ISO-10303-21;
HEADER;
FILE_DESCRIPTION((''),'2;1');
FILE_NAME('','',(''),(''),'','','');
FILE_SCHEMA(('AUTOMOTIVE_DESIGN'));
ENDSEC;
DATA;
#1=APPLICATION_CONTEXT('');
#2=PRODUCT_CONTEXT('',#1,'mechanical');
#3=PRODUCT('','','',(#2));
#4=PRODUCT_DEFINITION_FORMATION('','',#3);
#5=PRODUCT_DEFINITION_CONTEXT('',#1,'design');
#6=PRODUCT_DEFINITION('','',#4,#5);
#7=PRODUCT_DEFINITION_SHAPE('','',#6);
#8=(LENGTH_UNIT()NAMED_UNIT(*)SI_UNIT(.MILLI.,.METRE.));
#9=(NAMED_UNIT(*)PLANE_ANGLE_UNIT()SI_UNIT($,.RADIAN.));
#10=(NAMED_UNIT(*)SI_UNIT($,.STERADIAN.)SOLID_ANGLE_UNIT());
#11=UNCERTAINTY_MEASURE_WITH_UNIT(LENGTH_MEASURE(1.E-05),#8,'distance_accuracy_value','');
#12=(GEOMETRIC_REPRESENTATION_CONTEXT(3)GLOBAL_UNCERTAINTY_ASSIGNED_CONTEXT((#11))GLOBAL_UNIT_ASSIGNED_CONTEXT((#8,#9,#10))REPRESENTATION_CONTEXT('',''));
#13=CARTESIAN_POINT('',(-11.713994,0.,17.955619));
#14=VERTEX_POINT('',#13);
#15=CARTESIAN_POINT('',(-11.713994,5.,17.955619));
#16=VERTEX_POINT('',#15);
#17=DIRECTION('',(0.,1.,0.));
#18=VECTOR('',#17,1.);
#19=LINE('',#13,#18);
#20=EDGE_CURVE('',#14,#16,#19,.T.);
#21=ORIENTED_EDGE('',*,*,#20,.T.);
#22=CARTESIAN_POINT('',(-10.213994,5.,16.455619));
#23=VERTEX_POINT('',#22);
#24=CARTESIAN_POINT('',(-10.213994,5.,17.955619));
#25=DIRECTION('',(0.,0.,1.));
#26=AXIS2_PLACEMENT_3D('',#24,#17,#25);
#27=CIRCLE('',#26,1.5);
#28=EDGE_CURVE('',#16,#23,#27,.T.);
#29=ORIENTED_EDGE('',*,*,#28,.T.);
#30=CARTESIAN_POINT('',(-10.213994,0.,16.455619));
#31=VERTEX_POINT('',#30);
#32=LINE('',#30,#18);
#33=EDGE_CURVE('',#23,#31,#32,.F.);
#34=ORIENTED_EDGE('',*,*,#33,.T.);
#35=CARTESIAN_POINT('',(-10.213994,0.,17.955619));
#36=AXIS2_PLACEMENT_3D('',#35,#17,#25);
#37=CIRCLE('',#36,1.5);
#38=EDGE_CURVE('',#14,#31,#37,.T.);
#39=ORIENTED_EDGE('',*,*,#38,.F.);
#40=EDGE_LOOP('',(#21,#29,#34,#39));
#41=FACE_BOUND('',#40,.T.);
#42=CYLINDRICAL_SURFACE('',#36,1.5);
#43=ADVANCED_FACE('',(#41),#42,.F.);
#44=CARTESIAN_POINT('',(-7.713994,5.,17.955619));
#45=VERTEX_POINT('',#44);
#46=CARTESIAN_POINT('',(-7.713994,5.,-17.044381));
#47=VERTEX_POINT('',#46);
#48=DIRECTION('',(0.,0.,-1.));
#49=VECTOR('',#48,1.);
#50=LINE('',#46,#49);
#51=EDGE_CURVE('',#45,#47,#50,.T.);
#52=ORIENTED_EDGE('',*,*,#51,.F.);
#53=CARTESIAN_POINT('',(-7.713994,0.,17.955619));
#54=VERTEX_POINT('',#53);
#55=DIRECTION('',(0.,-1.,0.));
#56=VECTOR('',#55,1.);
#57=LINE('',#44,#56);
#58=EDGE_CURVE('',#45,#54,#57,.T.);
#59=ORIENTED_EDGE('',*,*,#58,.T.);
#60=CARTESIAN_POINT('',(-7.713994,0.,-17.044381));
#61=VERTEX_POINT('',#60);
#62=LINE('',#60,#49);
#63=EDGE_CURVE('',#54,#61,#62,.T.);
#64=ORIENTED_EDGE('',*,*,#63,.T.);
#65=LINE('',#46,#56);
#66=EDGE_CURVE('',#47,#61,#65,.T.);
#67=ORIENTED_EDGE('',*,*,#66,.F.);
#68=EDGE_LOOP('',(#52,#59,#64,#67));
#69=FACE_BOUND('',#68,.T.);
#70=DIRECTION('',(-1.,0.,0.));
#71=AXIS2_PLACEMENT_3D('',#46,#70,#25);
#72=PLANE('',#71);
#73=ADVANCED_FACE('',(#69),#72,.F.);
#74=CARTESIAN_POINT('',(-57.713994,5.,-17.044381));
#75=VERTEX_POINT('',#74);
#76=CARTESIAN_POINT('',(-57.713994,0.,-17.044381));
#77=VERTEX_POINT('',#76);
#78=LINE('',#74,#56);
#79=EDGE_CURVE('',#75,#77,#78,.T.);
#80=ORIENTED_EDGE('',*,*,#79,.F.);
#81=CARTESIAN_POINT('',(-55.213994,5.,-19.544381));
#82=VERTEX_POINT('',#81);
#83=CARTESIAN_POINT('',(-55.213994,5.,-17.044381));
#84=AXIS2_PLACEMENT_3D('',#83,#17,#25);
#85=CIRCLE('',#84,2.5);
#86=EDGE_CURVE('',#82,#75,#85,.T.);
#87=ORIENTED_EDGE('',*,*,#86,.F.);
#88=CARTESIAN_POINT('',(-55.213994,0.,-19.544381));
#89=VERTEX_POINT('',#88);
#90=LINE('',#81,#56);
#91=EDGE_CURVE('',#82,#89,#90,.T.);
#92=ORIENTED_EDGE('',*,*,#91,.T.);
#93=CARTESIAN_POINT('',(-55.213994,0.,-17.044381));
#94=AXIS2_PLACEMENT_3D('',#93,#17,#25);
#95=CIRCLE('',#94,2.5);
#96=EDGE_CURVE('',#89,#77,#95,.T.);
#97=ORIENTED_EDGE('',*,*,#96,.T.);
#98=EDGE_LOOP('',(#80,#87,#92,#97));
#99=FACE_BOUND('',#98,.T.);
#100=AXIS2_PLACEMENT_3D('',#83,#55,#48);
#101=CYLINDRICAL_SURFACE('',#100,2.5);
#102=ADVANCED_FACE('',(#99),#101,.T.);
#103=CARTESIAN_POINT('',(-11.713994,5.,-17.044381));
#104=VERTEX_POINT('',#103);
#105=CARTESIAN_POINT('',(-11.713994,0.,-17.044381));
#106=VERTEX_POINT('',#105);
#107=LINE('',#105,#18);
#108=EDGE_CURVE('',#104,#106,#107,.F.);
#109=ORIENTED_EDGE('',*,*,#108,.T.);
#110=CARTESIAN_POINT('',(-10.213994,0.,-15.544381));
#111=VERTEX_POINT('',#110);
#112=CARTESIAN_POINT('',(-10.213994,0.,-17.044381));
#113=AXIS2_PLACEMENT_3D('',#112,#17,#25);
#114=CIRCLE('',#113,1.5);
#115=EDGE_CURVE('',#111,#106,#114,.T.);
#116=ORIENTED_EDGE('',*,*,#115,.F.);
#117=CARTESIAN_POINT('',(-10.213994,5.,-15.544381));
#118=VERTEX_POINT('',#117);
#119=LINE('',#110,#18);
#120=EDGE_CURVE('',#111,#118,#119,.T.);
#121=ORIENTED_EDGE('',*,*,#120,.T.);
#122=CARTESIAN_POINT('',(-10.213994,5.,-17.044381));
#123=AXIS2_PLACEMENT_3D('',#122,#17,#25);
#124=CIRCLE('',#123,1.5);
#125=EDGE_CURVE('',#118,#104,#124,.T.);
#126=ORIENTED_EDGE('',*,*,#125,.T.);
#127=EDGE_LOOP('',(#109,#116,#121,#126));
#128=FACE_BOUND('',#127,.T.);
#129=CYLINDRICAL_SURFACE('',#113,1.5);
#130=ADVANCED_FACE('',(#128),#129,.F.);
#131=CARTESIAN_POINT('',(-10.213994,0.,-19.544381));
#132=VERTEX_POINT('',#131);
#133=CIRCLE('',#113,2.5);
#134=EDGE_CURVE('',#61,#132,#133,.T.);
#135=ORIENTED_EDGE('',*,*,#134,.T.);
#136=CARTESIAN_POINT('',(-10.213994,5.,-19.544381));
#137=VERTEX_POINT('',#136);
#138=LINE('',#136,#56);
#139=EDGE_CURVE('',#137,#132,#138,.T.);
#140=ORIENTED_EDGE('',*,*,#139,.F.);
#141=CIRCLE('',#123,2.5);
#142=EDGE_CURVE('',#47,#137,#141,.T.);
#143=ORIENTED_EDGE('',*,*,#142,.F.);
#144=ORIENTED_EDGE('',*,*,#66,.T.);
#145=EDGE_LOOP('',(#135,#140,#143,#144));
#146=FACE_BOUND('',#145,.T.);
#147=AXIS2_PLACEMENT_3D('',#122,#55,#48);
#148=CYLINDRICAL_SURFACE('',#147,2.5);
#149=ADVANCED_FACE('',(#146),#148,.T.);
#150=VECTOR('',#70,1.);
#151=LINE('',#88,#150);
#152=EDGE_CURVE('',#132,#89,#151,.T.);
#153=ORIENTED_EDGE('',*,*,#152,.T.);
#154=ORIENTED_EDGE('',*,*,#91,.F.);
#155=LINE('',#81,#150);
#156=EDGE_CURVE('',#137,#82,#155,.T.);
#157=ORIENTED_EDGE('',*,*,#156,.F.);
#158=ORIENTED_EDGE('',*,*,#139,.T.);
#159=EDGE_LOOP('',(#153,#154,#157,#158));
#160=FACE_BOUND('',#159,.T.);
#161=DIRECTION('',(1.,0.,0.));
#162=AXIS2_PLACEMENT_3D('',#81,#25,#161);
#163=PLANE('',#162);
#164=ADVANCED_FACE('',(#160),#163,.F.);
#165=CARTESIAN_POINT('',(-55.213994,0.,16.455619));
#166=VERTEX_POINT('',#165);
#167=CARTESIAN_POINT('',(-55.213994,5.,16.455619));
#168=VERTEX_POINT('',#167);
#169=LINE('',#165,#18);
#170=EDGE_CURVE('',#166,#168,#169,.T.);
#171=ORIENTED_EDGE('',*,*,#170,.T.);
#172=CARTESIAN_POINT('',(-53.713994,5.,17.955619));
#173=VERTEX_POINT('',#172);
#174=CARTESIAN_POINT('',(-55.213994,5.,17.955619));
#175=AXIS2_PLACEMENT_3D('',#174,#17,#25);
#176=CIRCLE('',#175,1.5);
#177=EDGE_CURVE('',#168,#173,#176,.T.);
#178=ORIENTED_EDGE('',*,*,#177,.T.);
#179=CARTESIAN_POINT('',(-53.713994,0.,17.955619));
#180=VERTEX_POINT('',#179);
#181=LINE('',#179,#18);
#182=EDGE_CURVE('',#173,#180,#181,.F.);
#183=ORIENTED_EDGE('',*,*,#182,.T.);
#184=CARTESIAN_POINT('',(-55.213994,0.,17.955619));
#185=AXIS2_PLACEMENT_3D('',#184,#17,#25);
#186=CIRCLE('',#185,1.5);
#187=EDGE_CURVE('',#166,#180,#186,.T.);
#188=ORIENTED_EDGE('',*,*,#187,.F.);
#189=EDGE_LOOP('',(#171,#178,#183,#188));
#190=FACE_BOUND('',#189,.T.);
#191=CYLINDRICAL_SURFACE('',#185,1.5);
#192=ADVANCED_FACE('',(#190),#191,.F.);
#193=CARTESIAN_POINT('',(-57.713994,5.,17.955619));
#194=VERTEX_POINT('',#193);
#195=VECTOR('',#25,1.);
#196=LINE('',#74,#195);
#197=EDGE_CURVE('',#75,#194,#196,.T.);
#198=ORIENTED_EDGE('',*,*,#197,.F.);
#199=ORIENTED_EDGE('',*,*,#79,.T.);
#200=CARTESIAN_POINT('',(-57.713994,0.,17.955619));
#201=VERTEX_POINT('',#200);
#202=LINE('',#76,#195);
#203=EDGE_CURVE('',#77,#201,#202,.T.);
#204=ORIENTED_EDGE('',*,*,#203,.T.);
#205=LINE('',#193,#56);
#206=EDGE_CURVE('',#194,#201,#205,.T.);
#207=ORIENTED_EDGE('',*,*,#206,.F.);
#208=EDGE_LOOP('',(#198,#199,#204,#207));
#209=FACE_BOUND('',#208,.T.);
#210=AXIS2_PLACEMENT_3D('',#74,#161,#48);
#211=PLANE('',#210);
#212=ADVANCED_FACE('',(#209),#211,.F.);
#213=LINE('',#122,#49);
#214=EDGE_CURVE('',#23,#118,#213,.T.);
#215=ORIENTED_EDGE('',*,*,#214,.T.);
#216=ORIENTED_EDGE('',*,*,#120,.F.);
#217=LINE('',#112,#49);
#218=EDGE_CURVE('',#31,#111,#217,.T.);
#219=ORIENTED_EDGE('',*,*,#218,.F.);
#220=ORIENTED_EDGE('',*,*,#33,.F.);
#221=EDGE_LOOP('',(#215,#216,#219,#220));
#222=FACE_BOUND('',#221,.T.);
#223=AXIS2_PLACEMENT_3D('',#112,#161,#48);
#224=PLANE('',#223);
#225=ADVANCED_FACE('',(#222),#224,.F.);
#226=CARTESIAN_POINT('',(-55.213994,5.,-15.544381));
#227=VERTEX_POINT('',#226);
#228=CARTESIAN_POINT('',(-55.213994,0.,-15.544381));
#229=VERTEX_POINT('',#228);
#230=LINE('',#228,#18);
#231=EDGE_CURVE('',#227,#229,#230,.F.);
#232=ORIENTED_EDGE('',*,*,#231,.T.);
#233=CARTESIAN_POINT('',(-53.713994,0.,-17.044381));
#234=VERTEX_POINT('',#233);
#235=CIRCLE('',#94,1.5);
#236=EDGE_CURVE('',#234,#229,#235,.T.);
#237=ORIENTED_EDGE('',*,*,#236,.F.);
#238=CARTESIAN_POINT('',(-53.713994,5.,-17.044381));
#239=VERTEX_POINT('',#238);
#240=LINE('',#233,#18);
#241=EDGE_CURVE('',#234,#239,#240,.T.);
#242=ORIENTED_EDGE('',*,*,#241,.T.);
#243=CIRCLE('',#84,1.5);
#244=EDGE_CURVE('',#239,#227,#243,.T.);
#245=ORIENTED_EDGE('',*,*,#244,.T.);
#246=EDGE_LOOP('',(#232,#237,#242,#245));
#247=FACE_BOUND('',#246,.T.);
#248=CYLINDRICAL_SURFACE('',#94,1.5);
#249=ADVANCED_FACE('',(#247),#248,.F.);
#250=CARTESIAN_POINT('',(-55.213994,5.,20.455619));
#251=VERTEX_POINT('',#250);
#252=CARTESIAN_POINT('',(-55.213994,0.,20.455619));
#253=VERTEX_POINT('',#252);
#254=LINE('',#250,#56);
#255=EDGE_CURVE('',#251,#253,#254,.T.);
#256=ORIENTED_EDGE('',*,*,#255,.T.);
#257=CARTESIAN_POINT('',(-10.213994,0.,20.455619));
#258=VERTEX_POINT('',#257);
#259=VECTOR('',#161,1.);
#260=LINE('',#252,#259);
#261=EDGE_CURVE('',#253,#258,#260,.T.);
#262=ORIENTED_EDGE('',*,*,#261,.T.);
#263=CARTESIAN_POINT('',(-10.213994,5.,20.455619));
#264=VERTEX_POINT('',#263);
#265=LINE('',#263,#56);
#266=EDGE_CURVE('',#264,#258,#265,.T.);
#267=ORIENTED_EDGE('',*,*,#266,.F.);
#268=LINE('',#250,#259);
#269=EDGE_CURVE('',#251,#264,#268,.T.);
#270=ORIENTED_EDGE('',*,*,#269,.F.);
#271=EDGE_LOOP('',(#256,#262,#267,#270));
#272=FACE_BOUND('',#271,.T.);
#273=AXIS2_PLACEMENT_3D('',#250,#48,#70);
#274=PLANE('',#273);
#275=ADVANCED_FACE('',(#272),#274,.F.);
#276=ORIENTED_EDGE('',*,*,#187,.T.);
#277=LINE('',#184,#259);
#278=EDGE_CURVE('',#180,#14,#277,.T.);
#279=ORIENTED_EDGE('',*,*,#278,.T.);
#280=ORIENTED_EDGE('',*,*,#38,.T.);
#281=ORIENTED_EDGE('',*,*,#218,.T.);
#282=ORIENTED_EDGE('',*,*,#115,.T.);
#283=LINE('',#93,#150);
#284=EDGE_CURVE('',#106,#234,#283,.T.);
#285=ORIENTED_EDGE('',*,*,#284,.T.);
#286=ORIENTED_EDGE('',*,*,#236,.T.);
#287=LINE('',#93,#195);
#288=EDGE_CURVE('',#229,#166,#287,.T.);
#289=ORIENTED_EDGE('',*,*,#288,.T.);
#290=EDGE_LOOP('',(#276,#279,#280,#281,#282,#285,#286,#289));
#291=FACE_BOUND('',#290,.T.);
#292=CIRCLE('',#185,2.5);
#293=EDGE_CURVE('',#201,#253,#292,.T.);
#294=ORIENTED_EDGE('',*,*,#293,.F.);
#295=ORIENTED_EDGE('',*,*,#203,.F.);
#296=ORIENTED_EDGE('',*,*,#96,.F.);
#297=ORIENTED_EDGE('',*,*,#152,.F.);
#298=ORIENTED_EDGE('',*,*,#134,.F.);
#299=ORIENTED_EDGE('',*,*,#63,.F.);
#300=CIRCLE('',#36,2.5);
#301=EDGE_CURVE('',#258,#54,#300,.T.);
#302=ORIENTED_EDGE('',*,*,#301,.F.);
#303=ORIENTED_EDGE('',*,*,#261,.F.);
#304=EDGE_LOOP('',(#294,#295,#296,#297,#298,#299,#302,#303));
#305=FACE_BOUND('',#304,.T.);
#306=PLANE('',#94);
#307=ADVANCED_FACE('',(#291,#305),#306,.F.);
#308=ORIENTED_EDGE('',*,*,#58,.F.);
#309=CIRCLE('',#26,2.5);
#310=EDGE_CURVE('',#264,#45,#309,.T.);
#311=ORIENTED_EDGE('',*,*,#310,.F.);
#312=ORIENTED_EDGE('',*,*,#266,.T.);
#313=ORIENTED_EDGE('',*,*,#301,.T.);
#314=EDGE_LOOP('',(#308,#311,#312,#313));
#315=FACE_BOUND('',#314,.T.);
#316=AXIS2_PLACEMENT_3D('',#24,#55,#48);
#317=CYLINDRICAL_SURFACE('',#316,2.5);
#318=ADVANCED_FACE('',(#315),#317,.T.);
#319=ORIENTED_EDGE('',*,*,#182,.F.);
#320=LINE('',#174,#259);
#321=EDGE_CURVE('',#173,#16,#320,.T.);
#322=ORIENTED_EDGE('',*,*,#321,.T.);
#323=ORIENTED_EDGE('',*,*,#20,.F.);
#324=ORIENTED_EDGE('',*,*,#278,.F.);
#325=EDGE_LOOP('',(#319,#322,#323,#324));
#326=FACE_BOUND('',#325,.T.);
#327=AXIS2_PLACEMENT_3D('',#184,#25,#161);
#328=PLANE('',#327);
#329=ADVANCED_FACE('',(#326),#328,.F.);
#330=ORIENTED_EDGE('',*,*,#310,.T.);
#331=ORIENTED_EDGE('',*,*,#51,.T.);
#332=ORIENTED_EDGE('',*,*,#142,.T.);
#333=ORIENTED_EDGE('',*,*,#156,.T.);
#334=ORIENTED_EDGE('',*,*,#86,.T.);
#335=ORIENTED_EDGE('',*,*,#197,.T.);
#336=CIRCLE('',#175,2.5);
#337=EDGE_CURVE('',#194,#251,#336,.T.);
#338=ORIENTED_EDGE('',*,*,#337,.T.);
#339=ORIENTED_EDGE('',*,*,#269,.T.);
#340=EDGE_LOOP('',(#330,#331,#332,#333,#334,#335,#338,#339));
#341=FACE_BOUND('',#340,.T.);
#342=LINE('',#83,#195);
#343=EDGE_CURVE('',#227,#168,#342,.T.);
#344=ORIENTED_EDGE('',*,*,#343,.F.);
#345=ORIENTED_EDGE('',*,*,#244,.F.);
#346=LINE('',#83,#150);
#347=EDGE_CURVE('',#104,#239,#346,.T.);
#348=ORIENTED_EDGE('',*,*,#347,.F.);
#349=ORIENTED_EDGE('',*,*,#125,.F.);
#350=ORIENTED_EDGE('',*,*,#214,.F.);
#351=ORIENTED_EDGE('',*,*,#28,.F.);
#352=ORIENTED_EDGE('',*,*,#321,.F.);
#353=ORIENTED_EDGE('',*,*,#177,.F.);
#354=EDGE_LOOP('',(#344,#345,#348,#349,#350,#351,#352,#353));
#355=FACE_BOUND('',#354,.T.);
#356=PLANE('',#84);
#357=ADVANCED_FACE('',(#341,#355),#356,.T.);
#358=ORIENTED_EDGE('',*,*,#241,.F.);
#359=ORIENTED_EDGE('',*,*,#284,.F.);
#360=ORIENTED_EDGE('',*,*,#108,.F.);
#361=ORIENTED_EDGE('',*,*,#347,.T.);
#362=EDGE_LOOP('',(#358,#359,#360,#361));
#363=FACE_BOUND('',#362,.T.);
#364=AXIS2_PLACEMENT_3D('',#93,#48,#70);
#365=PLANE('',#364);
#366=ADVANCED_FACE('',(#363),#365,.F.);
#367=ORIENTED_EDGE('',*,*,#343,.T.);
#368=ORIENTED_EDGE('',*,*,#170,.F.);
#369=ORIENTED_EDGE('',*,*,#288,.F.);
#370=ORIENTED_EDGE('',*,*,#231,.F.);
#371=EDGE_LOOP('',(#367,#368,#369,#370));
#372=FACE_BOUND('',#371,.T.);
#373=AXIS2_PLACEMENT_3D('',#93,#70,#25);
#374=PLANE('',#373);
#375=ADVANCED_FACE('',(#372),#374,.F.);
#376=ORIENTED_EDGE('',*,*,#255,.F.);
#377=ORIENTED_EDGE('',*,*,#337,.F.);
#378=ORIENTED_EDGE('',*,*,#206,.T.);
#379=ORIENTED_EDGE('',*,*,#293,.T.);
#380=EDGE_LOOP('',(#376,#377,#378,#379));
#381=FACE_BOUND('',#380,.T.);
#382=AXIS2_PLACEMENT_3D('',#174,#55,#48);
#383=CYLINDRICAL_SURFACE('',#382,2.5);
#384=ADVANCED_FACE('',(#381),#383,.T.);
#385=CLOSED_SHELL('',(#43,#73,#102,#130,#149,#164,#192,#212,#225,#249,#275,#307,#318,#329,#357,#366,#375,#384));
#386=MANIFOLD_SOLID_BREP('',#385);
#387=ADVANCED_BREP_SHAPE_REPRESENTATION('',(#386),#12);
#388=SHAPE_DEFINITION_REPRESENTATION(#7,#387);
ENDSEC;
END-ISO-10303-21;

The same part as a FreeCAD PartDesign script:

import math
import FreeCAD as App
import Part
import Sketcher
Q = App.Units.Quantity

doc = App.newDocument("Part")
body = doc.addObject("PartDesign::Body", "Body")

sketch1 = doc.addObject("Sketcher::SketchObject", "Sketch")
body.addObject(sketch1)
sketch1.AttachmentSupport = (doc.XZ_Plane, [""])
sketch1.MapMode = "FlatFace"
sketch1.addGeometry(Part.LineSegment(App.Vector(-10.2, -19.5, 0), App.Vector(-55.2, -19.5, 0)), False)
sketch1.addGeometry(Part.ArcOfCircle(Part.Circle(App.Vector(-55.2, -17, 0), App.Vector(0, 0, 1), 2.5), math.radians(180), math.radians(270)), False)
sketch1.addGeometry(Part.LineSegment(App.Vector(-57.7, -17, 0), App.Vector(-57.7, 18, 0)), False)
sketch1.addGeometry(Part.ArcOfCircle(Part.Circle(App.Vector(-55.2, 18, 0), App.Vector(0, 0, 1), 2.5), math.radians(90), math.radians(180)), False)
sketch1.addGeometry(Part.LineSegment(App.Vector(-55.2, 20.5, 0), App.Vector(-10.2, 20.5, 0)), False)
sketch1.addGeometry(Part.ArcOfCircle(Part.Circle(App.Vector(-10.2, 18, 0), App.Vector(0, 0, 1), 2.5), math.radians(0), math.radians(90)), False)
sketch1.addGeometry(Part.LineSegment(App.Vector(-7.7, 18, 0), App.Vector(-7.7, -17, 0)), False)
sketch1.addGeometry(Part.ArcOfCircle(Part.Circle(App.Vector(-10.2, -17, 0), App.Vector(0, 0, 1), 2.5), math.radians(-90), math.radians(0)), False)
sketch1.addConstraint(Sketcher.Constraint("Tangent", 0, 2, 1, 2))
sketch1.addConstraint(Sketcher.Constraint("Tangent", 1, 1, 2, 1))
sketch1.addConstraint(Sketcher.Constraint("Tangent", 2, 2, 3, 2))
sketch1.addConstraint(Sketcher.Constraint("Tangent", 3, 1, 4, 1))
sketch1.addConstraint(Sketcher.Constraint("Tangent", 4, 2, 5, 2))
sketch1.addConstraint(Sketcher.Constraint("Tangent", 5, 1, 6, 1))
sketch1.addConstraint(Sketcher.Constraint("Tangent", 6, 2, 7, 2))
sketch1.addConstraint(Sketcher.Constraint("Tangent", 7, 1, 0, 1))
sketch1.addConstraint(Sketcher.Constraint("Horizontal", 0))
sketch1.addConstraint(Sketcher.Constraint("Vertical", 2))
sketch1.addConstraint(Sketcher.Constraint("Horizontal", 4))
sketch1.addConstraint(Sketcher.Constraint("Vertical", 6))
sketch1.addConstraint(Sketcher.Constraint("Equal", 1, 3))
sketch1.addConstraint(Sketcher.Constraint("Equal", 3, 5))
sketch1.addConstraint(Sketcher.Constraint("Equal", 5, 7))
sketch1.addConstraint(Sketcher.Constraint("Radius", 1, Q("2.5 mm")))
sketch1.addConstraint(Sketcher.Constraint("DistanceX", 0, 2, 0, 1, Q("45 mm")))
sketch1.addConstraint(Sketcher.Constraint("DistanceY", 2, 1, 2, 2, Q("35 mm")))
sketch1.addConstraint(Sketcher.Constraint("DistanceY", 1, 3, -1, 1, Q("17.044381 mm")))
sketch1.addConstraint(Sketcher.Constraint("DistanceX", 1, 3, -1, 1, Q("55.213994 mm")))
pad1 = doc.addObject("PartDesign::Pad", "Pad")
body.addObject(pad1)
pad1.Profile = sketch1
pad1.Length = 5
pad1.Reversed = True

sketch2 = doc.addObject("Sketcher::SketchObject", "Sketch001")
body.addObject(sketch2)
sketch2.AttachmentSupport = (doc.XZ_Plane, [""])
sketch2.MapMode = "FlatFace"
sketch2.AttachmentOffset = App.Placement(App.Vector(0, 0, -5), App.Rotation())
sketch2.addGeometry(Part.Circle(App.Vector(-55.2, -17, 0), App.Vector(0, 0, 1), 1.5), False)
sketch2.addGeometry(Part.Circle(App.Vector(-10.2, -17, 0), App.Vector(0, 0, 1), 1.5), False)
sketch2.addGeometry(Part.Circle(App.Vector(-55.2, 18, 0), App.Vector(0, 0, 1), 1.5), False)
sketch2.addGeometry(Part.Circle(App.Vector(-10.2, 18, 0), App.Vector(0, 0, 1), 1.5), False)
sketch2.addConstraint(Sketcher.Constraint("Equal", 0, 1))
sketch2.addConstraint(Sketcher.Constraint("Equal", 1, 2))
sketch2.addConstraint(Sketcher.Constraint("Equal", 2, 3))
sketch2.addConstraint(Sketcher.Constraint("Horizontal", 0, 3, 1, 3))
sketch2.addConstraint(Sketcher.Constraint("Horizontal", 2, 3, 3, 3))
sketch2.addConstraint(Sketcher.Constraint("Vertical", 0, 3, 2, 3))
sketch2.addConstraint(Sketcher.Constraint("Vertical", 1, 3, 3, 3))
sketch2.addConstraint(Sketcher.Constraint("Diameter", 0, Q("3 mm")))
sketch2.addConstraint(Sketcher.Constraint("DistanceX", 0, 3, 1, 3, Q("45 mm")))
sketch2.addConstraint(Sketcher.Constraint("DistanceY", 0, 3, 2, 3, Q("35 mm")))
sketch2.addConstraint(Sketcher.Constraint("DistanceY", 0, 3, -1, 1, Q("17.044381 mm")))
sketch2.addConstraint(Sketcher.Constraint("DistanceX", 0, 3, -1, 1, Q("55.213994 mm")))
pocket1 = doc.addObject("PartDesign::Pocket", "Pocket")
body.addObject(pocket1)
pocket1.Profile = sketch2
pocket1.Type = "ThroughAll"
pocket1.Reversed = True

sketch3 = doc.addObject("Sketcher::SketchObject", "Sketch002")
body.addObject(sketch3)
sketch3.AttachmentSupport = (doc.XZ_Plane, [""])
sketch3.MapMode = "FlatFace"
sketch3.AttachmentOffset = App.Placement(App.Vector(0, 0, -5), App.Rotation())
sketch3.addGeometry(Part.LineSegment(App.Vector(-55, -17, 0), App.Vector(-55, 18, 0)), False)
sketch3.addGeometry(Part.LineSegment(App.Vector(-55, 18, 0), App.Vector(-10, 18, 0)), False)
sketch3.addGeometry(Part.LineSegment(App.Vector(-10, 18, 0), App.Vector(-10, -17, 0)), False)
sketch3.addGeometry(Part.LineSegment(App.Vector(-10, -17, 0), App.Vector(-55, -17, 0)), False)
sketch3.addConstraint(Sketcher.Constraint("Coincident", 0, 2, 1, 1))
sketch3.addConstraint(Sketcher.Constraint("Coincident", 1, 2, 2, 1))
sketch3.addConstraint(Sketcher.Constraint("Coincident", 2, 2, 3, 1))
sketch3.addConstraint(Sketcher.Constraint("Coincident", 3, 2, 0, 1))
sketch3.addConstraint(Sketcher.Constraint("Vertical", 0))
sketch3.addConstraint(Sketcher.Constraint("Horizontal", 1))
sketch3.addConstraint(Sketcher.Constraint("Vertical", 2))
sketch3.addConstraint(Sketcher.Constraint("Horizontal", 3))
sketch3.addConstraint(Sketcher.Constraint("DistanceX", 1, 1, 1, 2, Q("45 mm")))
sketch3.addConstraint(Sketcher.Constraint("DistanceY", 0, 1, 0, 2, Q("35 mm")))
sketch3.addConstraint(Sketcher.Constraint("DistanceY", -1, 1, 0, 2, Q("17.955619 mm")))
sketch3.addConstraint(Sketcher.Constraint("DistanceX", 0, 2, -1, 1, Q("55.213994 mm")))
pocket2 = doc.addObject("PartDesign::Pocket", "Pocket001")
body.addObject(pocket2)
pocket2.Profile = sketch3
pocket2.Type = "ThroughAll"
pocket2.Reversed = True

doc.recompute()
